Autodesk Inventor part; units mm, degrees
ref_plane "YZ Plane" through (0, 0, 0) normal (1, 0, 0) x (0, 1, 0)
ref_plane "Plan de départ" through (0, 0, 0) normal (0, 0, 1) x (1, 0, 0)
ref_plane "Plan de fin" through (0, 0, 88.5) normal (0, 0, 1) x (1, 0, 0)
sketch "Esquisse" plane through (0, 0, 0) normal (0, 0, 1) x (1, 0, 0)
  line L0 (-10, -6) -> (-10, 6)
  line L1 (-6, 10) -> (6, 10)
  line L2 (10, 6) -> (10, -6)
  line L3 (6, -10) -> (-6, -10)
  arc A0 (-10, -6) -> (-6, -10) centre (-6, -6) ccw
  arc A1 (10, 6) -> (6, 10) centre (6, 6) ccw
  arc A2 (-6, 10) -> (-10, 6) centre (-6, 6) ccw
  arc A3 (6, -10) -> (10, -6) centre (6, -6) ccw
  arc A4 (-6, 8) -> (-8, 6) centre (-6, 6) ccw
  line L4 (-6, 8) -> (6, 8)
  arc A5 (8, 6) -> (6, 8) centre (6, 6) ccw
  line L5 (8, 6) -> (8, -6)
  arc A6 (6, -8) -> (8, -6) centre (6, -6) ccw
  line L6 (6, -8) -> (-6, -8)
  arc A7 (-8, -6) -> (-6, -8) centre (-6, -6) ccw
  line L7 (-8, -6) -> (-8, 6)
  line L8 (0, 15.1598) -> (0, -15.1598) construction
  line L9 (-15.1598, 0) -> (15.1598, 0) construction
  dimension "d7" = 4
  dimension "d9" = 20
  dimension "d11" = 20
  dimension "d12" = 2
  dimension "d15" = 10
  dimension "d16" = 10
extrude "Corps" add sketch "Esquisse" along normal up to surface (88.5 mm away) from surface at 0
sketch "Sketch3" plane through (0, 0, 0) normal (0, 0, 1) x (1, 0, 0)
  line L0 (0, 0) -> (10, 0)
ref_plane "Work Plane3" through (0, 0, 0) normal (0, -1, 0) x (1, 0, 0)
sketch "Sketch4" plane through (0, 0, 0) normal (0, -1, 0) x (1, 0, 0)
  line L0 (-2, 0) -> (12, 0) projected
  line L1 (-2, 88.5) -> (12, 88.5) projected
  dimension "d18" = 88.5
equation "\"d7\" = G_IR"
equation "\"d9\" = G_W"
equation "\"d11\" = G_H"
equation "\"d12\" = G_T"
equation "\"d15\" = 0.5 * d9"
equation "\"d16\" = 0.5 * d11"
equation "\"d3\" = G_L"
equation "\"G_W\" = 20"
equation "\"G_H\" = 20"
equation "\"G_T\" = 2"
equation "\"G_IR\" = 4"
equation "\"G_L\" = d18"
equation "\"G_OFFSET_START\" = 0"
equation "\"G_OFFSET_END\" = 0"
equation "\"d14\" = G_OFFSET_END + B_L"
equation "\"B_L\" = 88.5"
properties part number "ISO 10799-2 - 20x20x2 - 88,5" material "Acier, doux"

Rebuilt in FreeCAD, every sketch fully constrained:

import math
import FreeCAD as App
import Part
import Sketcher

doc = App.newDocument("Part")
params = doc.addObject("Spreadsheet::Sheet", "Params")
for row, (alias, value) in enumerate([
    ("sketch1_radius", "4 mm"),
    ("sketch1_radius2", "2 mm"),
    ("pad1_length", "88.5 mm"),
], start=1):
    params.set(f"A{row}", alias)
    params.set(f"B{row}", "=" + value)
    params.setAlias(f"B{row}", alias)

body = doc.addObject("PartDesign::Body", "Body")

# Sketch on XY plane
sketch1 = body.newObject("Sketcher::SketchObject", "Sketch")
sketch1.AttachmentSupport = (doc.getObject("XY_Plane"), [""])
sketch1.MapMode = "FlatFace"
sketch1.addGeometry([
    Part.LineSegment(App.Vector(-10, 6, 0), App.Vector(-10, -6, 0)),  # 0
    Part.ArcOfCircle(Part.Circle(App.Vector(-6, -6, 0), App.Vector(0, 0, 1), 4), math.radians(180), math.radians(270)),  # 1
    Part.LineSegment(App.Vector(-6, -10, 0), App.Vector(6, -10, 0)),  # 2
    Part.ArcOfCircle(Part.Circle(App.Vector(6, -6, 0), App.Vector(0, 0, 1), 4), math.radians(-90), math.radians(0)),  # 3
    Part.LineSegment(App.Vector(10, -6, 0), App.Vector(10, 6, 0)),  # 4
    Part.ArcOfCircle(Part.Circle(App.Vector(6, 6, 0), App.Vector(0, 0, 1), 4), math.radians(0), math.radians(90)),  # 5
    Part.LineSegment(App.Vector(6, 10, 0), App.Vector(-6, 10, 0)),  # 6
    Part.ArcOfCircle(Part.Circle(App.Vector(-6, 6, 0), App.Vector(0, 0, 1), 4), math.radians(90), math.radians(180)),  # 7
    Part.ArcOfCircle(Part.Circle(App.Vector(-6, 6, 0), App.Vector(0, 0, 1), 2), math.radians(90), math.radians(180)),  # 8
    Part.LineSegment(App.Vector(-6, 8, 0), App.Vector(6, 8, 0)),  # 9
    Part.ArcOfCircle(Part.Circle(App.Vector(6, 6, 0), App.Vector(0, 0, 1), 2), math.radians(0), math.radians(90)),  # 10
    Part.LineSegment(App.Vector(8, 6, 0), App.Vector(8, -6, 0)),  # 11
    Part.ArcOfCircle(Part.Circle(App.Vector(6, -6, 0), App.Vector(0, 0, 1), 2), math.radians(-90), math.radians(0)),  # 12
    Part.LineSegment(App.Vector(6, -8, 0), App.Vector(-6, -8, 0)),  # 13
    Part.ArcOfCircle(Part.Circle(App.Vector(-6, -6, 0), App.Vector(0, 0, 1), 2), math.radians(180), math.radians(270)),  # 14
    Part.LineSegment(App.Vector(-8, -6, 0), App.Vector(-8, 6, 0)),  # 15
], False)
sketch1.addConstraint([
    Sketcher.Constraint("Tangent", 0, 2, 1, 1),
    Sketcher.Constraint("Tangent", 1, 2, 2, 1),
    Sketcher.Constraint("Tangent", 2, 2, 3, 1),
    Sketcher.Constraint("Tangent", 3, 2, 4, 1),
    Sketcher.Constraint("Tangent", 4, 2, 5, 1),
    Sketcher.Constraint("Tangent", 5, 2, 6, 1),
    Sketcher.Constraint("Tangent", 6, 2, 7, 1),
    Sketcher.Constraint("Tangent", 7, 2, 0, 1),
    Sketcher.Constraint("Tangent", 8, 1, 9, 1),
    Sketcher.Constraint("Tangent", 9, 2, 10, 2),
    Sketcher.Constraint("Tangent", 10, 1, 11, 1),
    Sketcher.Constraint("Tangent", 11, 2, 12, 2),
    Sketcher.Constraint("Tangent", 12, 1, 13, 1),
    Sketcher.Constraint("Tangent", 13, 2, 14, 2),
    Sketcher.Constraint("Tangent", 14, 1, 15, 1),
    Sketcher.Constraint("Tangent", 15, 2, 8, 2),
    Sketcher.Constraint("Vertical", 0),
    Sketcher.Constraint("Horizontal", 2),
    Sketcher.Constraint("Vertical", 4),
    Sketcher.Constraint("Horizontal", 6),
    Sketcher.Constraint("Horizontal", 9),
    Sketcher.Constraint("Vertical", 11),
    Sketcher.Constraint("Horizontal", 13),
    Sketcher.Constraint("Vertical", 15),
    Sketcher.Constraint("Coincident", 8, 3, 7, 3),
    Sketcher.Constraint("Coincident", 10, 3, 5, 3),
    Sketcher.Constraint("Coincident", 12, 3, 3, 3),
    Sketcher.Constraint("Equal", 1, 3),
    Sketcher.Constraint("Equal", 3, 5),
    Sketcher.Constraint("Equal", 5, 7),
    Sketcher.Constraint("Equal", 12, 14),
    Sketcher.Constraint("Symmetric", 1, 3, 5, 3, -1, 1),
    Sketcher.Constraint("Equal", 13, 0),
    Sketcher.Constraint("Radius", 1, 4.0),
    Sketcher.Constraint("Radius", 8, 2.0),
    Sketcher.Constraint("DistanceX", 0, 2, -1, 1, 10.0),
])
sketch1.setExpression("Constraints[33]", "Params.sketch1_radius")
sketch1.setExpression("Constraints[34]", "Params.sketch1_radius2")
pad1 = body.newObject("PartDesign::Pad", "Pad")
pad1.Profile = sketch1
pad1.setExpression("Length", "Params.pad1_length")

doc.recompute()
